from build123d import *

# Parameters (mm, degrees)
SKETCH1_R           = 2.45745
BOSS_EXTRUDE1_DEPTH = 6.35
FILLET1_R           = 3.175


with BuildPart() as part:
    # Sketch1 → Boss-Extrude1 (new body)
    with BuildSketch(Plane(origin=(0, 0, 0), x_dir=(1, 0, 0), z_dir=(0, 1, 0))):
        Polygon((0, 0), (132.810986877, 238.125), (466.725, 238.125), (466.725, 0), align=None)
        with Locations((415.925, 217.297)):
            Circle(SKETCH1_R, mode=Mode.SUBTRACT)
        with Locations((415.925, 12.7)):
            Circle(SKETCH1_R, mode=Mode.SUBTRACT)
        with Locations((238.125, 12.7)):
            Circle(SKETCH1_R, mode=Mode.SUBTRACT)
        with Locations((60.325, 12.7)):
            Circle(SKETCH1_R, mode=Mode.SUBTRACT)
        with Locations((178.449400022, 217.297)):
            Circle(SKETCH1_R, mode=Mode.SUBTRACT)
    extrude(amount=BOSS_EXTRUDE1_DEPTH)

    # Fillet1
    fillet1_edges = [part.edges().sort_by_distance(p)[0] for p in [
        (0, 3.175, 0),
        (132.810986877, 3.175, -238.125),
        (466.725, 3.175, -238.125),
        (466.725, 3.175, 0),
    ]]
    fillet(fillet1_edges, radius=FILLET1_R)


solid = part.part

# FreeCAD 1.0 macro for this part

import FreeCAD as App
import Part
import Sketcher
from FreeCAD import Vector
Q = App.Units.Quantity


def edges_at(feature, points):
    """Names of the edges that pass closest to the given points."""
    edges = feature.Shape.Edges
    near = lambda p: min(range(len(edges)), key=lambda i: edges[i].distToShape(Part.Vertex(*p))[0])
    return sorted({f"Edge{near(p) + 1}" for p in points})

doc = App.newDocument("Part")
params = doc.addObject("Spreadsheet::Sheet", "Params")
for row, (alias, value) in enumerate([
    ("sketch1_width", "18.375 in"),
    ("sketch1_height", "9.375 in"),
    ("pad1_length", "0.25 in"),
    ("fillet_radius", "0.125 in"),
], start=1):
    params.set(f"A{row}", alias)
    params.set(f"B{row}", "=" + value)
    params.setAlias(f"B{row}", alias)

body = doc.addObject("PartDesign::Body", "Body")

sketch1 = body.newObject("Sketcher::SketchObject", "Sketch")
sketch1.AttachmentSupport = (doc.getObject("XZ_Plane"), [""])
sketch1.MapMode = "FlatFace"
sketch1.addGeometry([
    Part.LineSegment(Vector(132.8, -238.1, 0), Vector(0, 0, 0)),
    Part.LineSegment(Vector(0, 0, 0), Vector(466.7, 0, 0)),
    Part.LineSegment(Vector(466.7, 0, 0), Vector(466.7, -238.1, 0)),
    Part.LineSegment(Vector(466.7, -238.1, 0), Vector(132.8, -238.1, 0)),
    Part.Circle(Vector(415.9, -12.7, 0), Vector(0, 0, 1), 2.5),
    Part.Circle(Vector(238.1, -12.7, 0), Vector(0, 0, 1), 2.5),
    Part.Circle(Vector(60.3, -12.7, 0), Vector(0, 0, 1), 2.5),
    Part.Circle(Vector(415.9, -217.3, 0), Vector(0, 0, 1), 2.5),
    Part.Circle(Vector(178.4, -217.3, 0), Vector(0, 0, 1), 2.5),
], False)
sketch1.addConstraint([
    Sketcher.Constraint("Coincident", 0, 2, 1, 1),
    Sketcher.Constraint("Coincident", 1, 2, 2, 1),
    Sketcher.Constraint("Coincident", 2, 2, 3, 1),
    Sketcher.Constraint("Coincident", 3, 2, 0, 1),
    Sketcher.Constraint("Horizontal", 1),
    Sketcher.Constraint("Vertical", 2),
    Sketcher.Constraint("Horizontal", 3),
    Sketcher.Constraint("Coincident", 0, 2, -1, 1),
    Sketcher.Constraint("Equal", 4, 5),
    Sketcher.Constraint("Equal", 5, 6),
    Sketcher.Constraint("Equal", 6, 7),
    Sketcher.Constraint("Equal", 7, 8),
    Sketcher.Constraint("Horizontal", 4, 3, 5, 3),
    Sketcher.Constraint("Horizontal", 5, 3, 6, 3),
    Sketcher.Constraint("Horizontal", 7, 3, 8, 3),
    Sketcher.Constraint("Vertical", 4, 3, 7, 3),
    Sketcher.Constraint("DistanceX", 5, 3, 4, 3, Q("7 in")),
    Sketcher.Constraint("DistanceX", 6, 3, 5, 3, Q("7 in")),
    Sketcher.Constraint("DistanceX", 4, 3, 1, 2, Q("2 in")),
    Sketcher.Constraint("Diameter", 4, Q("0.1935 in")),
    Sketcher.Constraint("DistanceY", 4, 3, -1, 1, Q("0.5 in")),
    Sketcher.Constraint("DistanceX", 1, 1, 1, 2, Q("18.375 in")),
    Sketcher.Constraint("DistanceY", 2, 2, 2, 1, Q("9.375 in")),
    Sketcher.Constraint("Angle", 0, Q("119.15 deg")),
    Sketcher.Constraint("DistanceY", 2, 2, 7, 3, Q("0.82 in")),
    Sketcher.Constraint("DistanceX", -1, 1, 8, 3, Q("178.4494 mm")),
])
sketch1.setExpression("Constraints[21]", "Params.sketch1_width")
sketch1.setExpression("Constraints[22]", "Params.sketch1_height")
pad1 = body.newObject("PartDesign::Pad", "Pad")
pad1.Profile = sketch1
pad1.setExpression("Length", "Params.pad1_length")
pad1.Reversed = True
doc.recompute()

fillet = body.newObject("PartDesign::Fillet", "Fillet")
fillet.Base = (pad1, edges_at(pad1, [
    (0, 3.175, 0),
    (132.811, 3.175, -238.125),
    (466.725, 3.175, -238.125),
    (466.725, 3.175, 0),
]))
fillet.setExpression("Radius", "Params.fillet_radius")

doc.recompute()
